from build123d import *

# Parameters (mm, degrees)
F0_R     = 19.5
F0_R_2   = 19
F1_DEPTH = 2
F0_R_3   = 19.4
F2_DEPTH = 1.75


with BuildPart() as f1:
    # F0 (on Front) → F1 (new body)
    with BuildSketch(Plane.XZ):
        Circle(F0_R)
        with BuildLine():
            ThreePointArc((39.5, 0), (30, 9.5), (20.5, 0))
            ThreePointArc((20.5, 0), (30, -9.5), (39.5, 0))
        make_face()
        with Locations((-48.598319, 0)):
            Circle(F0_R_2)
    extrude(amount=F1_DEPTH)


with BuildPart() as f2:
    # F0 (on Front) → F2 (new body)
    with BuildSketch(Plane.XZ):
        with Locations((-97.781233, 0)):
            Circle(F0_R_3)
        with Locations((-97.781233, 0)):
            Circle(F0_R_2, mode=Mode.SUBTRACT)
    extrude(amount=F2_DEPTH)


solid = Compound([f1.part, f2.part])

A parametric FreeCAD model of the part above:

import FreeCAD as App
import Part
import Sketcher

doc = App.newDocument("Part")
body = doc.addObject("PartDesign::Body", "Body")
body.AllowCompound = True

# Sketch on XZ plane
sketch1 = body.newObject("Sketcher::SketchObject", "Sketch")
sketch1.AttachmentSupport = (doc.getObject("XZ_Plane"), [""])
sketch1.MapMode = "FlatFace"
sketch1.addGeometry(Part.Circle(App.Vector(0, 0, 0), App.Vector(0, 0, 1), 20), False)
sketch1.addGeometry(Part.Circle(App.Vector(30, 0, 0), App.Vector(0, 0, 1), 10), False)
sketch1.addGeometry(Part.Circle(App.Vector(-49, 0, 0), App.Vector(0, 0, 1), 19), False)
sketch1.addConstraint(Sketcher.Constraint("Coincident", 0, 3, -1, 1))
sketch1.addConstraint(Sketcher.Constraint("PointOnObject", 1, 3, -1))
sketch1.addConstraint(Sketcher.Constraint("PointOnObject", 2, 3, -1))
sketch1.addConstraint(Sketcher.Constraint("Diameter", 0, 39.0))
sketch1.addConstraint(Sketcher.Constraint("Diameter", 1, 19.0))
sketch1.addConstraint(Sketcher.Constraint("Diameter", 2, 38.0))
sketch1.addConstraint(Sketcher.Constraint("DistanceX", -1, 1, 1, 3, 30.0))
sketch1.addConstraint(Sketcher.Constraint("DistanceX", 2, 3, -1, 1, 48.598319))
pad1 = body.newObject("PartDesign::Pad", "Pad")
pad1.Profile = sketch1
pad1.Length = 2
body2 = doc.addObject("PartDesign::Body", "Body001")

# Sketch on XZ plane
sketch2 = body2.newObject("Sketcher::SketchObject", "Sketch001")
sketch2.AttachmentSupport = (doc.getObject("XZ_Plane001"), [""])
sketch2.MapMode = "FlatFace"
sketch2.addGeometry(Part.Circle(App.Vector(-98, 0, 0), App.Vector(0, 0, 1), 19), False)
sketch2.addGeometry(Part.Circle(App.Vector(-98, 0, 0), App.Vector(0, 0, 1), 19), False)
sketch2.addConstraint(Sketcher.Constraint("Coincident", 1, 3, 0, 3))
sketch2.addConstraint(Sketcher.Constraint("PointOnObject", 0, 3, -1))
sketch2.addConstraint(Sketcher.Constraint("Diameter", 1, 38.0))
sketch2.addConstraint(Sketcher.Constraint("Diameter", 0, 38.8))
sketch2.addConstraint(Sketcher.Constraint("DistanceX", 0, 3, -1, 1, 97.781233))
pad2 = body2.newObject("PartDesign::Pad", "Pad001")
pad2.Profile = sketch2
pad2.Length = 1.75

doc.recompute()
